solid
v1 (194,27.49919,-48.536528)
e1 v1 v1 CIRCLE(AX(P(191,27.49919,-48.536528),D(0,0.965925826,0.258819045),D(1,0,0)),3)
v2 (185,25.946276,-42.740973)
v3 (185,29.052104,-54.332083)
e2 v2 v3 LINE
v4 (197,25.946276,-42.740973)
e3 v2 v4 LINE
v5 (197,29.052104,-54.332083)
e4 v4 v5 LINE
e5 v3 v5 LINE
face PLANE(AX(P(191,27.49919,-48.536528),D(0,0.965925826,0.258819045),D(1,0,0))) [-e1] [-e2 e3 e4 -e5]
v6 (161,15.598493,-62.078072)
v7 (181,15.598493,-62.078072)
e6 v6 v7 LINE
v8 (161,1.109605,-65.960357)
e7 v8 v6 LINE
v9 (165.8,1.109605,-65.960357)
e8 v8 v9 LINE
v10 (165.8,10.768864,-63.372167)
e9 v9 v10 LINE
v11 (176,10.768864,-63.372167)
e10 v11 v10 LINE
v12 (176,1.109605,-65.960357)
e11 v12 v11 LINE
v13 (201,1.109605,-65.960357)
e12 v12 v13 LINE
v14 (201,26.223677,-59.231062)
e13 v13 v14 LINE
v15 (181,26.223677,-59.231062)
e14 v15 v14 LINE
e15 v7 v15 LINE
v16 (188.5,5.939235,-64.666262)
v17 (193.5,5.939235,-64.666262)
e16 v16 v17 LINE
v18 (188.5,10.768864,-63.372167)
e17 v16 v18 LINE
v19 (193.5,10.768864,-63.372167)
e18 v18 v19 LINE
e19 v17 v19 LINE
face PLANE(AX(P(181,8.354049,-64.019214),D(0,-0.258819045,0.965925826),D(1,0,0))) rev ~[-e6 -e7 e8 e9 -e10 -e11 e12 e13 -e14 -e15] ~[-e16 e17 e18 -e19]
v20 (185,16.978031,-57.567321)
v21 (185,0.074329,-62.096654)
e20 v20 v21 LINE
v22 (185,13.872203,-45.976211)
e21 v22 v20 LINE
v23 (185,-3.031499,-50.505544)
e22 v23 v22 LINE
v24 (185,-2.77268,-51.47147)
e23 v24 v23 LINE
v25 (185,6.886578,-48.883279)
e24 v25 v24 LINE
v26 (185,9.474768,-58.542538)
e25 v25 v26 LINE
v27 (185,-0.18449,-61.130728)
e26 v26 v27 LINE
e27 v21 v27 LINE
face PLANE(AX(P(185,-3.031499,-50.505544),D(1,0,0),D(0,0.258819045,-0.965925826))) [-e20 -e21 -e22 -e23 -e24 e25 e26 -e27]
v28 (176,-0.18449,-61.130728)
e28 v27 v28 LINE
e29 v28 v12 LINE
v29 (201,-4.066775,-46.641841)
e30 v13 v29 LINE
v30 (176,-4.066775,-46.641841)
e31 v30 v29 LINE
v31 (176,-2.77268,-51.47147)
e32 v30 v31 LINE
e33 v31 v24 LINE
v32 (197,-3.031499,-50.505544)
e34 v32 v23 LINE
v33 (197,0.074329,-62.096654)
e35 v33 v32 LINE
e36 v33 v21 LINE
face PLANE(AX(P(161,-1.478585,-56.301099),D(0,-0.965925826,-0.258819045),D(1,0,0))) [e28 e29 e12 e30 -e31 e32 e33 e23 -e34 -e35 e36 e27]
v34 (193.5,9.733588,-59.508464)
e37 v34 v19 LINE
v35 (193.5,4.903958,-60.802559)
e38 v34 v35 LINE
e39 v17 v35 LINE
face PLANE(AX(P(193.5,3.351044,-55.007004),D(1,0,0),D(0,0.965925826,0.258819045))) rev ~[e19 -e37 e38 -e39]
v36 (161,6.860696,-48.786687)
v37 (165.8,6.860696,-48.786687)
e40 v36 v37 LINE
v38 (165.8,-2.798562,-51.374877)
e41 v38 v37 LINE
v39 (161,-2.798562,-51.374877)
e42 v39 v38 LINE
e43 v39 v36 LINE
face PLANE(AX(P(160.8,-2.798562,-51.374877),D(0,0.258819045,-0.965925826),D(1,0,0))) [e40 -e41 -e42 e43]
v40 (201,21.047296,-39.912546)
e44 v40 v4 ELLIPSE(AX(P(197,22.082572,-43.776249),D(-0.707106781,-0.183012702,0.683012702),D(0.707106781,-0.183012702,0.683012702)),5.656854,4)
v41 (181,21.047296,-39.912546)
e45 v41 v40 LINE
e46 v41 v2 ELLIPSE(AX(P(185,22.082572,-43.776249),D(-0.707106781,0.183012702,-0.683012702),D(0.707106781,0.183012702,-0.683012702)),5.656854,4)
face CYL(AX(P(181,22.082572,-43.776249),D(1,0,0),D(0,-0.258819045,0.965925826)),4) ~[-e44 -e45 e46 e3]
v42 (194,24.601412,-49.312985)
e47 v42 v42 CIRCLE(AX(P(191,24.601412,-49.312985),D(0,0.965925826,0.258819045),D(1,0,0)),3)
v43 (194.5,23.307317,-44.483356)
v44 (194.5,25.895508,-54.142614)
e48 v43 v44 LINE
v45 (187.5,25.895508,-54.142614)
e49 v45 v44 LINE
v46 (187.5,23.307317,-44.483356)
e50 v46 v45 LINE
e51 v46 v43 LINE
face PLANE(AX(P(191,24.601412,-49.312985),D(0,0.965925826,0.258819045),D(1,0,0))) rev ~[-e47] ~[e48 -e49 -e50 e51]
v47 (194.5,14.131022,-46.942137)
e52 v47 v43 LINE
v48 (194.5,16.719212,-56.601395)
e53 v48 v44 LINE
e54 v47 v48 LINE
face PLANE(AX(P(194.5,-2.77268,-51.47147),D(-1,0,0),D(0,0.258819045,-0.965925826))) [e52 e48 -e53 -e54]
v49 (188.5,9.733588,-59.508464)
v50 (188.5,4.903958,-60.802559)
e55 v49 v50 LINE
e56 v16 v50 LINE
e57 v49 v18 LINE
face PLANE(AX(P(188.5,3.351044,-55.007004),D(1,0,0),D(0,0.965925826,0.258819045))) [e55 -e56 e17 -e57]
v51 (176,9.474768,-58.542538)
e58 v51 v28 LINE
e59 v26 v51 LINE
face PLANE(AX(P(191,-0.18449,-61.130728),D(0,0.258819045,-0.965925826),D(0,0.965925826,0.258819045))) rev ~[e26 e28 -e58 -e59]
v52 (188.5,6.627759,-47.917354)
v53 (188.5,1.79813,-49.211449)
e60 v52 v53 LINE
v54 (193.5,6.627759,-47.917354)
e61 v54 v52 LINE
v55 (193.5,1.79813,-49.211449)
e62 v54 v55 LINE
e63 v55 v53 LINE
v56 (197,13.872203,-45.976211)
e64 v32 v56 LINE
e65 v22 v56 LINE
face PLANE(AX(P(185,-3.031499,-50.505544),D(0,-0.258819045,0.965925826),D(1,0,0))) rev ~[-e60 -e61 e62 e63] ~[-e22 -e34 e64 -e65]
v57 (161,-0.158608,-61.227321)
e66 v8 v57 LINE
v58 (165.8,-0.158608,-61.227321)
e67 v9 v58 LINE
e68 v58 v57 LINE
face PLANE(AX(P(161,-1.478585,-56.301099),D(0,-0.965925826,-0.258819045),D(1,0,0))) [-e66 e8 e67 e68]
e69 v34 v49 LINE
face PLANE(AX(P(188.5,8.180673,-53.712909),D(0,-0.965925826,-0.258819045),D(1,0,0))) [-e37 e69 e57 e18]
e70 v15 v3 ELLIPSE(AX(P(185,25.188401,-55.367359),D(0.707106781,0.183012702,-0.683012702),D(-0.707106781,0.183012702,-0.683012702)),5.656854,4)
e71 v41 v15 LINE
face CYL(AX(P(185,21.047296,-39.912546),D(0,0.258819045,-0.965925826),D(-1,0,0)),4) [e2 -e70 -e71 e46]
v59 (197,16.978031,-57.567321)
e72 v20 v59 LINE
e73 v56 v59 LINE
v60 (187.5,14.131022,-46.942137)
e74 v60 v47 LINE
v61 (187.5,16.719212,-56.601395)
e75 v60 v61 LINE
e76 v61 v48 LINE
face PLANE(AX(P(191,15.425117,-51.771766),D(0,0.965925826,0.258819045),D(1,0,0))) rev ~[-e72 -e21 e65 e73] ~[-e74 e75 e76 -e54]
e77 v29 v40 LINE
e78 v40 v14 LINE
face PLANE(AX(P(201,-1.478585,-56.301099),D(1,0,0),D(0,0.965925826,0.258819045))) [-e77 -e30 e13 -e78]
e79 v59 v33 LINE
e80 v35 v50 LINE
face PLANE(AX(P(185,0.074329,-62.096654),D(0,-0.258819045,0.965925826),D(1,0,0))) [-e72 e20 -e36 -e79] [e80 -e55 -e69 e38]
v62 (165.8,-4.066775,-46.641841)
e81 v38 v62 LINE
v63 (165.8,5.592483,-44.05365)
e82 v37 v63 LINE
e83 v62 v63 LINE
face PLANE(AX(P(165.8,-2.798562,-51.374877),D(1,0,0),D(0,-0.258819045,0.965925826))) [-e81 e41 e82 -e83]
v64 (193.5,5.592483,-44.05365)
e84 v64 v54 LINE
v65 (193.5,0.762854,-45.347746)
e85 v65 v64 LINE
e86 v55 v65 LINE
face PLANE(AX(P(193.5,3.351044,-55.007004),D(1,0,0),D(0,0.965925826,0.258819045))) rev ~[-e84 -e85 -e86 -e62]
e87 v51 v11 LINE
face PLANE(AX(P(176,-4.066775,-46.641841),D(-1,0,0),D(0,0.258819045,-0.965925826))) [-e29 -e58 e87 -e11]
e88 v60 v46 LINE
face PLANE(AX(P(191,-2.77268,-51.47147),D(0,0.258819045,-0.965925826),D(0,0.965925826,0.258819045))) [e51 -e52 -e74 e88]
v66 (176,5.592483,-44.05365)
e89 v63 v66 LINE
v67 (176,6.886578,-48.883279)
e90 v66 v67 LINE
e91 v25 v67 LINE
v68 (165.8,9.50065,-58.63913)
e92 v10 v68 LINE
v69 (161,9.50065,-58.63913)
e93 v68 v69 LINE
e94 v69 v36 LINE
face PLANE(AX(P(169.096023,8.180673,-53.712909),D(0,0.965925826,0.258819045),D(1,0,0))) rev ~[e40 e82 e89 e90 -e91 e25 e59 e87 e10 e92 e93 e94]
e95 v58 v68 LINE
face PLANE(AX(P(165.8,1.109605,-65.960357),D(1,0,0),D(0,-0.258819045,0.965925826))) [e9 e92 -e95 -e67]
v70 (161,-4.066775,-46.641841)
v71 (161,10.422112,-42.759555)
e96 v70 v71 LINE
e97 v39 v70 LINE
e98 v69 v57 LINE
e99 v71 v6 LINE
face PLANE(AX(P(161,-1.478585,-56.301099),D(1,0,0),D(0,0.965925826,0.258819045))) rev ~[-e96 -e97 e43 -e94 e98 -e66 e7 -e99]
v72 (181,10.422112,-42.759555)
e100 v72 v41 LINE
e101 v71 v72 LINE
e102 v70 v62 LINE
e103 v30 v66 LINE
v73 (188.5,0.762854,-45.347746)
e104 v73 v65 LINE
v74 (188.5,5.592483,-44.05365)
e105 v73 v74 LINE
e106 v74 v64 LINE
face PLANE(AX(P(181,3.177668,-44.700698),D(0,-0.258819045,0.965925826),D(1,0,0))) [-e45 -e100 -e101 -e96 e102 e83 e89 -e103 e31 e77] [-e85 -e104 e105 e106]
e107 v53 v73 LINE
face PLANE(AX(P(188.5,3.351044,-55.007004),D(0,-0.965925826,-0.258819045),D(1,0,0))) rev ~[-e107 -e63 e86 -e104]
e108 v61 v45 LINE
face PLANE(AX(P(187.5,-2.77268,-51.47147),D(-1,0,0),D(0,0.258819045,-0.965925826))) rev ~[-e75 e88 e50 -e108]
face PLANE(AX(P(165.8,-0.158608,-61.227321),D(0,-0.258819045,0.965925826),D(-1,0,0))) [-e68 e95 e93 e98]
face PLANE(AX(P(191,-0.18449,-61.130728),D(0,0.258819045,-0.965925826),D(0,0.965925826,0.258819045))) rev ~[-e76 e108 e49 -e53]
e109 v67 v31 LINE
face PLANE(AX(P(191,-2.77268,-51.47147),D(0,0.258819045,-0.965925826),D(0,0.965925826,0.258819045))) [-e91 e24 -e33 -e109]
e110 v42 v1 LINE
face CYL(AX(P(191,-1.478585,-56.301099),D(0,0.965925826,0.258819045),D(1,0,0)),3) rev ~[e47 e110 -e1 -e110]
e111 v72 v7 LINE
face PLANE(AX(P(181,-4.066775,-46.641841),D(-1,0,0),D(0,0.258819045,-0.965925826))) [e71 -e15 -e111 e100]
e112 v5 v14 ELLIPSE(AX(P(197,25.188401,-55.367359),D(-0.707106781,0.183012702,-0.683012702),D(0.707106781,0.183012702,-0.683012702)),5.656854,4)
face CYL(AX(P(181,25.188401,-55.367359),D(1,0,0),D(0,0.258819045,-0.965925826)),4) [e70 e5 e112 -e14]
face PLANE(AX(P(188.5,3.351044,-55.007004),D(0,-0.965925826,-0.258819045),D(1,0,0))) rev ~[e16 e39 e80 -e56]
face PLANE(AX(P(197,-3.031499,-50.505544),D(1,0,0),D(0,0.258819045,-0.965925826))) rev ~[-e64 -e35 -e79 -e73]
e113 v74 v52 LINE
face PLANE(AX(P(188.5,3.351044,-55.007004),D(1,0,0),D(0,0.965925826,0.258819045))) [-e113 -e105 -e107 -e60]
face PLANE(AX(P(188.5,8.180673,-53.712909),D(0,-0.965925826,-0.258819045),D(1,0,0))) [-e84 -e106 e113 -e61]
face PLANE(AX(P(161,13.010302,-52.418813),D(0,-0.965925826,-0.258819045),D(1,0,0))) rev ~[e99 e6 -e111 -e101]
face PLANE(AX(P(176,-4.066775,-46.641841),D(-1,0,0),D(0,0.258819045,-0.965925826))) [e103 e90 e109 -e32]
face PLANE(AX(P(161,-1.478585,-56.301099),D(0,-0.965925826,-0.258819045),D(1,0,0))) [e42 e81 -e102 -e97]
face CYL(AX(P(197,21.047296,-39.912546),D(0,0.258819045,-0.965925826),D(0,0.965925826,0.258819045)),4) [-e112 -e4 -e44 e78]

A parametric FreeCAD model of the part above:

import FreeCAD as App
import Part
import Sketcher

V = App.Vector
Q = App.Units.Quantity


def edges_at(feature, points):
    """Names of the edges that pass closest to the given points."""
    edges = feature.Shape.Edges
    near = lambda p: min(range(len(edges)), key=lambda i: edges[i].distToShape(Part.Vertex(*p))[0])
    return sorted({f"Edge{near(p) + 1}" for p in points})

doc = App.newDocument("Part")
body = doc.addObject("PartDesign::Body", "Body")

sketch1 = body.newObject("Sketcher::SketchObject", "Sketch")
sketch1.AttachmentSupport = (doc.getObject("XZ_Plane"), [""])
sketch1.MapMode = "FlatFace"
sketch1.addGeometry(Part.LineSegment(V(-30, 15, 0), V(-30, 0, 0)), False)
sketch1.addGeometry(Part.LineSegment(V(-30, 0, 0), V(10, 0, 0)), False)
sketch1.addGeometry(Part.LineSegment(V(10, 0, 0), V(10, 15, 0)), False)
sketch1.addGeometry(Part.LineSegment(V(10, 15, 0), V(-30, 15, 0)), False)
sketch1.addConstraint(Sketcher.Constraint("Coincident", 0, 2, 1, 1))
sketch1.addConstraint(Sketcher.Constraint("Coincident", 1, 2, 2, 1))
sketch1.addConstraint(Sketcher.Constraint("Coincident", 2, 2, 3, 1))
sketch1.addConstraint(Sketcher.Constraint("Coincident", 3, 2, 0, 1))
sketch1.addConstraint(Sketcher.Constraint("Vertical", 0))
sketch1.addConstraint(Sketcher.Constraint("Horizontal", 1))
sketch1.addConstraint(Sketcher.Constraint("Vertical", 2))
sketch1.addConstraint(Sketcher.Constraint("Horizontal", 3))
sketch1.addConstraint(Sketcher.Constraint("PointOnObject", 0, 2, -1))
sketch1.addConstraint(Sketcher.Constraint("DistanceX", 1, 1, 1, 2, Q("40 mm")))
sketch1.addConstraint(Sketcher.Constraint("DistanceY", 0, 2, 0, 1, Q("15 mm")))
sketch1.addConstraint(Sketcher.Constraint("DistanceX", 0, 2, -1, 1, Q("30 mm")))
pad1 = body.newObject("PartDesign::Pad", "Pad")
pad1.Profile = sketch1
pad1.Length = 20
pad1.Midplane = True

sketch2 = body.newObject("Sketcher::SketchObject", "Sketch001")
sketch2.AttachmentSupport = (doc.getObject("XY_Plane"), [""])
sketch2.MapMode = "FlatFace"
sketch2.addGeometry(Part.LineSegment(V(-25.2, 5.1, 0), V(-30.2, 5.1, 0)), False)
sketch2.addGeometry(Part.LineSegment(V(-30.2, 5.1, 0), V(-30.2, -5.1, 0)), False)
sketch2.addGeometry(Part.LineSegment(V(-30.2, -5.1, 0), V(-25.2, -5.1, 0)), False)
sketch2.addGeometry(Part.LineSegment(V(-25.2, -5.1, 0), V(-25.2, -10, 0)), False)
sketch2.addGeometry(Part.LineSegment(V(-25.2, -10, 0), V(-15, -10, 0)), False)
sketch2.addGeometry(Part.LineSegment(V(-15, -10, 0), V(-15, 10, 0)), False)
sketch2.addGeometry(Part.LineSegment(V(-15, 10, 0), V(-25.2, 10, 0)), False)
sketch2.addGeometry(Part.LineSegment(V(-25.2, 10, 0), V(-25.2, 5.1, 0)), False)
sketch2.addConstraint(Sketcher.Constraint("Coincident", 0, 2, 1, 1))
sketch2.addConstraint(Sketcher.Constraint("Coincident", 1, 2, 2, 1))
sketch2.addConstraint(Sketcher.Constraint("Coincident", 2, 2, 3, 1))
sketch2.addConstraint(Sketcher.Constraint("Coincident", 3, 2, 4, 1))
sketch2.addConstraint(Sketcher.Constraint("Coincident", 4, 2, 5, 1))
sketch2.addConstraint(Sketcher.Constraint("Coincident", 5, 2, 6, 1))
sketch2.addConstraint(Sketcher.Constraint("Coincident", 6, 2, 7, 1))
sketch2.addConstraint(Sketcher.Constraint("Coincident", 7, 2, 0, 1))
sketch2.addConstraint(Sketcher.Constraint("Horizontal", 0))
sketch2.addConstraint(Sketcher.Constraint("Vertical", 1))
sketch2.addConstraint(Sketcher.Constraint("Horizontal", 2))
sketch2.addConstraint(Sketcher.Constraint("Vertical", 3))
sketch2.addConstraint(Sketcher.Constraint("Horizontal", 4))
sketch2.addConstraint(Sketcher.Constraint("Vertical", 5))
sketch2.addConstraint(Sketcher.Constraint("Horizontal", 6))
sketch2.addConstraint(Sketcher.Constraint("Vertical", 7))
sketch2.addConstraint(Sketcher.Constraint("Symmetric", 3, 2, 6, 2, -1))
sketch2.addConstraint(Sketcher.Constraint("Equal", 6, 1))
sketch2.addConstraint(Sketcher.Constraint("Equal", 3, 7))
sketch2.addConstraint(Sketcher.Constraint("DistanceX", 0, 2, 0, 1, Q("5 mm")))
sketch2.addConstraint(Sketcher.Constraint("DistanceY", 5, 1, 5, 2, Q("20 mm")))
sketch2.addConstraint(Sketcher.Constraint("DistanceX", 4, 1, 4, 2, Q("10.2 mm")))
sketch2.addConstraint(Sketcher.Constraint("DistanceX", 4, 2, -1, 1, Q("15 mm")))
pocket1 = body.newObject("PartDesign::Pocket", "Pocket")
pocket1.Profile = sketch2
pocket1.Length = 10
pocket1.Reversed = True

sketch3 = body.newObject("Sketcher::SketchObject", "Sketch002")
sketch3.AttachmentSupport = (doc.getObject("XY_Plane"), [""])
sketch3.MapMode = "FlatFace"
sketch3.addGeometry(Part.LineSegment(V(-10, 10, 0), V(-10, -10, 0)), False)
sketch3.addGeometry(Part.LineSegment(V(-10, -10, 0), V(10, -10, 0)), False)
sketch3.addGeometry(Part.LineSegment(V(10, -10, 0), V(10, 10, 0)), False)
sketch3.addGeometry(Part.LineSegment(V(10, 10, 0), V(-10, 10, 0)), False)
sketch3.addConstraint(Sketcher.Constraint("Coincident", 0, 2, 1, 1))
sketch3.addConstraint(Sketcher.Constraint("Coincident", 1, 2, 2, 1))
sketch3.addConstraint(Sketcher.Constraint("Coincident", 2, 2, 3, 1))
sketch3.addConstraint(Sketcher.Constraint("Coincident", 3, 2, 0, 1))
sketch3.addConstraint(Sketcher.Constraint("Vertical", 0))
sketch3.addConstraint(Sketcher.Constraint("Horizontal", 1))
sketch3.addConstraint(Sketcher.Constraint("Vertical", 2))
sketch3.addConstraint(Sketcher.Constraint("Horizontal", 3))
sketch3.addConstraint(Sketcher.Constraint("Symmetric", 0, 2, 2, 2, -1, 1))
sketch3.addConstraint(Sketcher.Constraint("Equal", 3, 0))
sketch3.addConstraint(Sketcher.Constraint("DistanceX", 1, 1, 1, 2, Q("20 mm")))
pad2 = body.newObject("PartDesign::Pad", "Pad001")
pad2.Profile = sketch3
pad2.Length = 30

sketch4 = body.newObject("Sketcher::SketchObject", "Sketch003")
sketch4.AttachmentSupport = (doc.getObject("XY_Plane"), [""])
sketch4.MapMode = "FlatFace"
sketch4.addGeometry(Part.Circle(V(0, 0, 0), V(0, 0, 1), 3), False)
sketch4.addConstraint(Sketcher.Constraint("Coincident", 0, 3, -1, 1))
sketch4.addConstraint(Sketcher.Constraint("Diameter", 0, Q("6 mm")))
pocket2 = body.newObject("PartDesign::Pocket", "Pocket001")
pocket2.Profile = sketch4
pocket2.Length = 500
pocket2.Midplane = True

sketch5 = body.newObject("Sketcher::SketchObject", "Sketch004")
sketch5.AttachmentSupport = (doc.getObject("XY_Plane"), [""])
sketch5.MapMode = "FlatFace"
sketch5.addGeometry(Part.LineSegment(V(-3.5, 5, 0), V(-3.5, -5, 0)), False)
sketch5.addGeometry(Part.LineSegment(V(-3.5, -5, 0), V(3.5, -5, 0)), False)
sketch5.addGeometry(Part.LineSegment(V(3.5, -5, 0), V(3.5, 5, 0)), False)
sketch5.addGeometry(Part.LineSegment(V(3.5, 5, 0), V(-3.5, 5, 0)), False)
sketch5.addConstraint(Sketcher.Constraint("Coincident", 0, 2, 1, 1))
sketch5.addConstraint(Sketcher.Constraint("Coincident", 1, 2, 2, 1))
sketch5.addConstraint(Sketcher.Constraint("Coincident", 2, 2, 3, 1))
sketch5.addConstraint(Sketcher.Constraint("Coincident", 3, 2, 0, 1))
sketch5.addConstraint(Sketcher.Constraint("Vertical", 0))
sketch5.addConstraint(Sketcher.Constraint("Horizontal", 1))
sketch5.addConstraint(Sketcher.Constraint("Vertical", 2))
sketch5.addConstraint(Sketcher.Constraint("Horizontal", 3))
sketch5.addConstraint(Sketcher.Constraint("Symmetric", 0, 2, 2, 2, -1, 1))
sketch5.addConstraint(Sketcher.Constraint("DistanceX", 1, 1, 1, 2, Q("7 mm")))
sketch5.addConstraint(Sketcher.Constraint("DistanceY", 0, 2, 0, 1, Q("10 mm")))
pocket3 = body.newObject("PartDesign::Pocket", "Pocket002")
pocket3.Profile = sketch5
pocket3.Length = 27
pocket3.Reversed = True

sketch6 = body.newObject("Sketcher::SketchObject", "Sketch005")
sketch6.AttachmentSupport = (doc.getObject("YZ_Plane"), [""])
sketch6.MapMode = "FlatFace"
sketch6.addGeometry(Part.LineSegment(V(-5, 10, 0), V(-5, 0, 0)), False)
sketch6.addGeometry(Part.LineSegment(V(-5, 0, 0), V(5, 0, 0)), False)
sketch6.addGeometry(Part.LineSegment(V(5, 0, 0), V(5, 10, 0)), False)
sketch6.addGeometry(Part.LineSegment(V(5, 10, 0), V(-5, 10, 0)), False)
sketch6.addConstraint(Sketcher.Constraint("Coincident", 0, 2, 1, 1))
sketch6.addConstraint(Sketcher.Constraint("Coincident", 1, 2, 2, 1))
sketch6.addConstraint(Sketcher.Constraint("Coincident", 2, 2, 3, 1))
sketch6.addConstraint(Sketcher.Constraint("Coincident", 3, 2, 0, 1))
sketch6.addConstraint(Sketcher.Constraint("Vertical", 0))
sketch6.addConstraint(Sketcher.Constraint("Horizontal", 1))
sketch6.addConstraint(Sketcher.Constraint("Vertical", 2))
sketch6.addConstraint(Sketcher.Constraint("Horizontal", 3))
sketch6.addConstraint(Sketcher.Constraint("Symmetric", 0, 2, 1, 2, -1, 1))
sketch6.addConstraint(Sketcher.Constraint("Equal", 3, 0))
sketch6.addConstraint(Sketcher.Constraint("DistanceX", 1, 1, 1, 2, Q("10 mm")))
pocket4 = body.newObject("PartDesign::Pocket", "Pocket003")
pocket4.Profile = sketch6
pocket4.Length = 20
doc.recompute()

fillet = body.newObject("PartDesign::Fillet", "Fillet")
fillet.Base = (pocket4, edges_at(pocket4, [
    (0, -10, 30),
    (10, 0, 30),
    (-10, 0, 30),
    (0, 10, 30),
]))
fillet.Radius = 4

sketch7 = body.newObject("Sketcher::SketchObject", "Sketch006")
sketch7.AttachmentSupport = (doc.getObject("XZ_Plane"), [""])
sketch7.MapMode = "FlatFace"
sketch7.addGeometry(Part.LineSegment(V(-2.5, 10, 0), V(-2.5, 5, 0)), False)
sketch7.addGeometry(Part.LineSegment(V(-2.5, 5, 0), V(2.5, 5, 0)), False)
sketch7.addGeometry(Part.LineSegment(V(2.5, 5, 0), V(2.5, 10, 0)), False)
sketch7.addGeometry(Part.LineSegment(V(2.5, 10, 0), V(-2.5, 10, 0)), False)
sketch7.addConstraint(Sketcher.Constraint("Coincident", 0, 2, 1, 1))
sketch7.addConstraint(Sketcher.Constraint("Coincident", 1, 2, 2, 1))
sketch7.addConstraint(Sketcher.Constraint("Coincident", 2, 2, 3, 1))
sketch7.addConstraint(Sketcher.Constraint("Coincident", 3, 2, 0, 1))
sketch7.addConstraint(Sketcher.Constraint("Vertical", 0))
sketch7.addConstraint(Sketcher.Constraint("Horizontal", 1))
sketch7.addConstraint(Sketcher.Constraint("Vertical", 2))
sketch7.addConstraint(Sketcher.Constraint("Horizontal", 3))
sketch7.addConstraint(Sketcher.Constraint("Equal", 3, 0))
sketch7.addConstraint(Sketcher.Constraint("DistanceX", 1, 1, 1, 2, Q("5 mm")))
sketch7.addConstraint(Sketcher.Constraint("DistanceY", -1, 1, 0, 2, Q("5 mm")))
sketch7.addConstraint(Sketcher.Constraint("DistanceX", 0, 2, -1, 1, Q("2.5 mm")))
pocket5 = body.newObject("PartDesign::Pocket", "Pocket004")
pocket5.Profile = sketch7
pocket5.Length = 50
pocket5.Midplane = True

sketch8 = body.newObject("Sketcher::SketchObject", "Sketch007")
sketch8.AttachmentSupport = (doc.getObject("XY_Plane"), [""])
sketch8.MapMode = "FlatFace"
sketch8.addGeometry(Part.LineSegment(V(-6, 6, 0), V(-6, -6, 0)), False)
sketch8.addGeometry(Part.LineSegment(V(-6, -6, 0), V(6, -6, 0)), False)
sketch8.addGeometry(Part.LineSegment(V(6, -6, 0), V(6, 6, 0)), False)
sketch8.addGeometry(Part.LineSegment(V(6, 6, 0), V(-6, 6, 0)), False)
sketch8.addConstraint(Sketcher.Constraint("Coincident", 0, 2, 1, 1))
sketch8.addConstraint(Sketcher.Constraint("Coincident", 1, 2, 2, 1))
sketch8.addConstraint(Sketcher.Constraint("Coincident", 2, 2, 3, 1))
sketch8.addConstraint(Sketcher.Constraint("Coincident", 3, 2, 0, 1))
sketch8.addConstraint(Sketcher.Constraint("Vertical", 0))
sketch8.addConstraint(Sketcher.Constraint("Horizontal", 1))
sketch8.addConstraint(Sketcher.Constraint("Vertical", 2))
sketch8.addConstraint(Sketcher.Constraint("Horizontal", 3))
sketch8.addConstraint(Sketcher.Constraint("Symmetric", 0, 2, 2, 2, -1, 1))
sketch8.addConstraint(Sketcher.Constraint("Equal", 3, 0))
sketch8.addConstraint(Sketcher.Constraint("DistanceX", 1, 1, 1, 2, Q("12 mm")))
pocket6 = body.newObject("PartDesign::Pocket", "Pocket005")
pocket6.Profile = sketch8
pocket6.Length = 35
pocket6.Midplane = True
body2 = doc.addObject("PartDesign::Body", "Body001")
doc.recompute()

body.Placement = App.Placement(V(191, -1.478585, -56.301099), App.Rotation(V(1, 0, 0), 285))
boolean = body2.newObject("PartDesign::Boolean", "Boolean")
boolean.Type = "Fuse"
boolean.addObjects([body])

doc.recompute()
